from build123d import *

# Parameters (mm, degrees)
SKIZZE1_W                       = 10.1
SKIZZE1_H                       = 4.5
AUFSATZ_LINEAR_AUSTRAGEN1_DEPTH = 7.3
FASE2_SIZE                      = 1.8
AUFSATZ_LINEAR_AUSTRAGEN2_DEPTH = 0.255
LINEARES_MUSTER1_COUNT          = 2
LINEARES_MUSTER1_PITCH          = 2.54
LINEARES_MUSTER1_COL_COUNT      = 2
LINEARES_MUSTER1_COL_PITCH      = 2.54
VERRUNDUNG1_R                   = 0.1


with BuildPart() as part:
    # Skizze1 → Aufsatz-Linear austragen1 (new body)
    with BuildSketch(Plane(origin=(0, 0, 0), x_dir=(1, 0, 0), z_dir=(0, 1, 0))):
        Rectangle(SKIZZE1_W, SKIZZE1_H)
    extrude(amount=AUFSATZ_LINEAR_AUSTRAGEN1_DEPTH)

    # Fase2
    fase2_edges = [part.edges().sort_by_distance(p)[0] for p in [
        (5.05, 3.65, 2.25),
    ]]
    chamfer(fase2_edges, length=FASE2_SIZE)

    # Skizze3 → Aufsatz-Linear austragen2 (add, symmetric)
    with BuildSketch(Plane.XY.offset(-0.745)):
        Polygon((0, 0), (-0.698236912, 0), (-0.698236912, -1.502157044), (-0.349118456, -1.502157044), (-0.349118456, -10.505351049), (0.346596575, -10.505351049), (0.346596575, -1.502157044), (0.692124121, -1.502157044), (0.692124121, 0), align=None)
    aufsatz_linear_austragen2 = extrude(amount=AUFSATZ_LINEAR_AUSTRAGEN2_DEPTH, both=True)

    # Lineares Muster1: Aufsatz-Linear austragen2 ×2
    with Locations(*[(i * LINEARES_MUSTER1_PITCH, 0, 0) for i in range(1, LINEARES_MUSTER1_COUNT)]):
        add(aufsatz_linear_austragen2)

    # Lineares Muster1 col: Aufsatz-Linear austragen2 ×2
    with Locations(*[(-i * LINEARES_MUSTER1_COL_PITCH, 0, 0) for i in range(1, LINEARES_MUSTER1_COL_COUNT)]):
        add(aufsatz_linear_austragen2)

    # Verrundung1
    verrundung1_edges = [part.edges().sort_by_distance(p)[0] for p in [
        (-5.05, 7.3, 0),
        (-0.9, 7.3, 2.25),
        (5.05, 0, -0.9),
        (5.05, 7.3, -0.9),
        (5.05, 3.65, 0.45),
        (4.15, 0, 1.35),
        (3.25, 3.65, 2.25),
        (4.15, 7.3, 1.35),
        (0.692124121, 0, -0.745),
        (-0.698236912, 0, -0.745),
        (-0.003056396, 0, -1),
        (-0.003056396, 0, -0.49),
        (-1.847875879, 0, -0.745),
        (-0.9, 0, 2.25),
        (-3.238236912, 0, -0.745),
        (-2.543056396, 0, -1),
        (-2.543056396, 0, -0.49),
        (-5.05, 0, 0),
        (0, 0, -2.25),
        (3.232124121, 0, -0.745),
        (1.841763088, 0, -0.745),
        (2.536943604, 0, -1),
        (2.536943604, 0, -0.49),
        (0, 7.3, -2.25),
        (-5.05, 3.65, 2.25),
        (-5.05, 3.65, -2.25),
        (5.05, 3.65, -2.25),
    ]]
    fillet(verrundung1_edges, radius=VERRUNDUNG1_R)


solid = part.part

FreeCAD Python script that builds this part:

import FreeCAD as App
import Part
import Sketcher

V = App.Vector


def edges_at(feature, points):
    """Names of the edges that pass closest to the given points."""
    edges = feature.Shape.Edges
    near = lambda p: min(range(len(edges)), key=lambda i: edges[i].distToShape(Part.Vertex(*p))[0])
    return sorted({f"Edge{near(p) + 1}" for p in points})


def add_polygon(sketch, points):
    """Adds a closed chain of lines whose ends are joined by coincident constraints."""
    first, n = sketch.GeometryCount, len(points)
    for a, b in zip(points, points[1:] + points[:1]):
        sketch.addGeometry(Part.LineSegment(App.Vector(*a, 0), App.Vector(*b, 0)), False)
    for i in range(n):
        sketch.addConstraint(Sketcher.Constraint("Coincident", first + i, 2, first + (i + 1) % n, 1))

doc = App.newDocument("Part")
params = doc.addObject("Spreadsheet::Sheet", "Params")
for row, (alias, value) in enumerate([
    ("sketch1_width", "10.1 mm"),
    ("sketch1_height", "4.5 mm"),
    ("pad1_length", "7.3 mm"),
    ("chamfer_size", "1.8 mm"),
    ("pad2_length", "0.51 mm"),
    ("linearpattern_pitch", "2.54 mm"),
    ("linearpattern2_pitch", "2.54 mm"),
    ("fillet_radius", "0.1 mm"),
], start=1):
    params.set(f"A{row}", alias)
    params.set(f"B{row}", "=" + value)
    params.setAlias(f"B{row}", alias)

body = doc.addObject("PartDesign::Body", "Body")

# Sketch on XZ plane
sketch1 = body.newObject("Sketcher::SketchObject", "Sketch")
sketch1.AttachmentSupport = (doc.getObject("XZ_Plane"), [""])
sketch1.MapMode = "FlatFace"
add_polygon(sketch1, [(-5.05, -2.25), (-5.05, 2.25), (5.05, 2.25), (5.05, -2.25)])  # lines 0-3
sketch1.addConstraint([
    Sketcher.Constraint("Vertical", 0),
    Sketcher.Constraint("Horizontal", 1),
    Sketcher.Constraint("Vertical", 2),
    Sketcher.Constraint("Horizontal", 3),
    Sketcher.Constraint("Symmetric", 0, 2, 2, 2, -1, 1),
    Sketcher.Constraint("DistanceX", 1, 1, 1, 2, 10.1),
    Sketcher.Constraint("DistanceY", 0, 1, 0, 2, 4.5),
])
sketch1.setExpression("Constraints[9]", "Params.sketch1_width")
sketch1.setExpression("Constraints[10]", "Params.sketch1_height")
pad1 = body.newObject("PartDesign::Pad", "Pad")
pad1.Profile = sketch1
pad1.setExpression("Length", "Params.pad1_length")
pad1.Reversed = True
doc.recompute()

chamfer = body.newObject("PartDesign::Chamfer", "Chamfer")
chamfer.Base = (pad1, edges_at(pad1, [(5.05, 3.65, 2.25)]))
chamfer.setExpression("Size", "Params.chamfer_size")

# Sketch on XY plane
sketch2 = body.newObject("Sketcher::SketchObject", "Sketch001")
sketch2.AttachmentSupport = (doc.getObject("XY_Plane"), [""])
sketch2.MapMode = "FlatFace"
sketch2.AttachmentOffset = App.Placement(V(0, 0, -0.745), App.Rotation())
add_polygon(sketch2, [(-0.698237, 0), (-0.698237, -1.502157), (-0.349118, -1.502157), (-0.349118, -10.505351), (0.346597, -10.505351), (0.346597, -1.502157), (0.692124, -1.502157), (0.692124, 0)])  # lines 0-7
sketch2.addConstraint([
    Sketcher.Constraint("Vertical", 0),
    Sketcher.Constraint("Horizontal", 1),
    Sketcher.Constraint("Vertical", 2),
    Sketcher.Constraint("Horizontal", 3),
    Sketcher.Constraint("Vertical", 4),
    Sketcher.Constraint("Horizontal", 5),
    Sketcher.Constraint("Vertical", 6),
    Sketcher.Constraint("Horizontal", 7),
    Sketcher.Constraint("PointOnObject", 6, 2, -1),
    Sketcher.Constraint("Horizontal", 1, 2, 4, 2),
    Sketcher.Constraint("DistanceX", 1, 1, 1, 2, 0.349118),
    Sketcher.Constraint("DistanceX", 7, 2, 7, 1, 1.390361),
    Sketcher.Constraint("DistanceX", 3, 1, 3, 2, 0.695715),
    Sketcher.Constraint("DistanceY", 0, 2, 0, 1, 1.502157),
    Sketcher.Constraint("DistanceY", 2, 2, 2, 1, 9.003194),
    Sketcher.Constraint("DistanceX", 1, 2, -1, 1, 0.349118),
])
pad2 = body.newObject("PartDesign::Pad", "Pad001")
pad2.Profile = sketch2
pad2.setExpression("Length", "Params.pad2_length")
pad2.Midplane = True
doc.recompute()

linearpattern = body.newObject("PartDesign::LinearPattern", "LinearPattern")
linearpattern.Originals = [pad2]
linearpattern.Direction = (doc.getObject("X_Axis"), [""])
linearpattern.Mode = "offset"
linearpattern.setExpression("Offset", "Params.linearpattern_pitch")
linearpattern.Occurrences = 2
body.Tip = linearpattern
doc.recompute()

linearpattern2 = body.newObject("PartDesign::LinearPattern", "LinearPattern001")
linearpattern2.Originals = [pad2]
linearpattern2.Direction = (doc.getObject("X_Axis"), [""])
linearpattern2.Mode = "offset"
linearpattern2.setExpression("Offset", "Params.linearpattern2_pitch")
linearpattern2.Occurrences = 2
linearpattern2.Reversed = True
body.Tip = linearpattern2
doc.recompute()

fillet = body.newObject("PartDesign::Fillet", "Fillet")
fillet.Base = (linearpattern2, edges_at(linearpattern2, [
    (-5.05, 7.3, 0),
    (-0.9, 7.3, 2.25),
    (5.05, 0, -0.9),
    (5.05, 7.3, -0.9),
    (5.05, 3.65, 0.45),
    (4.15, 0, 1.35),
    (3.25, 3.65, 2.25),
    (4.15, 7.3, 1.35),
    (0.692, 0, -0.745),
    (-0.698, 0, -0.745),
    (-0.003, 0, -1),
    (-0.003, 0, -0.49),
    (-1.848, 0, -0.745),
    (-0.9, 0, 2.25),
    (-3.238, 0, -0.745),
    (-2.543, 0, -1),
    (-2.543, 0, -0.49),
    (-5.05, 0, 0),
    (0, 0, -2.25),
    (3.232, 0, -0.745),
    (1.842, 0, -0.745),
    (2.537, 0, -1),
    (2.537, 0, -0.49),
    (0, 7.3, -2.25),
    (-5.05, 3.65, 2.25),
    (-5.05, 3.65, -2.25),
    (5.05, 3.65, -2.25),
]))
fillet.setExpression("Radius", "Params.fillet_radius")

doc.recompute()
